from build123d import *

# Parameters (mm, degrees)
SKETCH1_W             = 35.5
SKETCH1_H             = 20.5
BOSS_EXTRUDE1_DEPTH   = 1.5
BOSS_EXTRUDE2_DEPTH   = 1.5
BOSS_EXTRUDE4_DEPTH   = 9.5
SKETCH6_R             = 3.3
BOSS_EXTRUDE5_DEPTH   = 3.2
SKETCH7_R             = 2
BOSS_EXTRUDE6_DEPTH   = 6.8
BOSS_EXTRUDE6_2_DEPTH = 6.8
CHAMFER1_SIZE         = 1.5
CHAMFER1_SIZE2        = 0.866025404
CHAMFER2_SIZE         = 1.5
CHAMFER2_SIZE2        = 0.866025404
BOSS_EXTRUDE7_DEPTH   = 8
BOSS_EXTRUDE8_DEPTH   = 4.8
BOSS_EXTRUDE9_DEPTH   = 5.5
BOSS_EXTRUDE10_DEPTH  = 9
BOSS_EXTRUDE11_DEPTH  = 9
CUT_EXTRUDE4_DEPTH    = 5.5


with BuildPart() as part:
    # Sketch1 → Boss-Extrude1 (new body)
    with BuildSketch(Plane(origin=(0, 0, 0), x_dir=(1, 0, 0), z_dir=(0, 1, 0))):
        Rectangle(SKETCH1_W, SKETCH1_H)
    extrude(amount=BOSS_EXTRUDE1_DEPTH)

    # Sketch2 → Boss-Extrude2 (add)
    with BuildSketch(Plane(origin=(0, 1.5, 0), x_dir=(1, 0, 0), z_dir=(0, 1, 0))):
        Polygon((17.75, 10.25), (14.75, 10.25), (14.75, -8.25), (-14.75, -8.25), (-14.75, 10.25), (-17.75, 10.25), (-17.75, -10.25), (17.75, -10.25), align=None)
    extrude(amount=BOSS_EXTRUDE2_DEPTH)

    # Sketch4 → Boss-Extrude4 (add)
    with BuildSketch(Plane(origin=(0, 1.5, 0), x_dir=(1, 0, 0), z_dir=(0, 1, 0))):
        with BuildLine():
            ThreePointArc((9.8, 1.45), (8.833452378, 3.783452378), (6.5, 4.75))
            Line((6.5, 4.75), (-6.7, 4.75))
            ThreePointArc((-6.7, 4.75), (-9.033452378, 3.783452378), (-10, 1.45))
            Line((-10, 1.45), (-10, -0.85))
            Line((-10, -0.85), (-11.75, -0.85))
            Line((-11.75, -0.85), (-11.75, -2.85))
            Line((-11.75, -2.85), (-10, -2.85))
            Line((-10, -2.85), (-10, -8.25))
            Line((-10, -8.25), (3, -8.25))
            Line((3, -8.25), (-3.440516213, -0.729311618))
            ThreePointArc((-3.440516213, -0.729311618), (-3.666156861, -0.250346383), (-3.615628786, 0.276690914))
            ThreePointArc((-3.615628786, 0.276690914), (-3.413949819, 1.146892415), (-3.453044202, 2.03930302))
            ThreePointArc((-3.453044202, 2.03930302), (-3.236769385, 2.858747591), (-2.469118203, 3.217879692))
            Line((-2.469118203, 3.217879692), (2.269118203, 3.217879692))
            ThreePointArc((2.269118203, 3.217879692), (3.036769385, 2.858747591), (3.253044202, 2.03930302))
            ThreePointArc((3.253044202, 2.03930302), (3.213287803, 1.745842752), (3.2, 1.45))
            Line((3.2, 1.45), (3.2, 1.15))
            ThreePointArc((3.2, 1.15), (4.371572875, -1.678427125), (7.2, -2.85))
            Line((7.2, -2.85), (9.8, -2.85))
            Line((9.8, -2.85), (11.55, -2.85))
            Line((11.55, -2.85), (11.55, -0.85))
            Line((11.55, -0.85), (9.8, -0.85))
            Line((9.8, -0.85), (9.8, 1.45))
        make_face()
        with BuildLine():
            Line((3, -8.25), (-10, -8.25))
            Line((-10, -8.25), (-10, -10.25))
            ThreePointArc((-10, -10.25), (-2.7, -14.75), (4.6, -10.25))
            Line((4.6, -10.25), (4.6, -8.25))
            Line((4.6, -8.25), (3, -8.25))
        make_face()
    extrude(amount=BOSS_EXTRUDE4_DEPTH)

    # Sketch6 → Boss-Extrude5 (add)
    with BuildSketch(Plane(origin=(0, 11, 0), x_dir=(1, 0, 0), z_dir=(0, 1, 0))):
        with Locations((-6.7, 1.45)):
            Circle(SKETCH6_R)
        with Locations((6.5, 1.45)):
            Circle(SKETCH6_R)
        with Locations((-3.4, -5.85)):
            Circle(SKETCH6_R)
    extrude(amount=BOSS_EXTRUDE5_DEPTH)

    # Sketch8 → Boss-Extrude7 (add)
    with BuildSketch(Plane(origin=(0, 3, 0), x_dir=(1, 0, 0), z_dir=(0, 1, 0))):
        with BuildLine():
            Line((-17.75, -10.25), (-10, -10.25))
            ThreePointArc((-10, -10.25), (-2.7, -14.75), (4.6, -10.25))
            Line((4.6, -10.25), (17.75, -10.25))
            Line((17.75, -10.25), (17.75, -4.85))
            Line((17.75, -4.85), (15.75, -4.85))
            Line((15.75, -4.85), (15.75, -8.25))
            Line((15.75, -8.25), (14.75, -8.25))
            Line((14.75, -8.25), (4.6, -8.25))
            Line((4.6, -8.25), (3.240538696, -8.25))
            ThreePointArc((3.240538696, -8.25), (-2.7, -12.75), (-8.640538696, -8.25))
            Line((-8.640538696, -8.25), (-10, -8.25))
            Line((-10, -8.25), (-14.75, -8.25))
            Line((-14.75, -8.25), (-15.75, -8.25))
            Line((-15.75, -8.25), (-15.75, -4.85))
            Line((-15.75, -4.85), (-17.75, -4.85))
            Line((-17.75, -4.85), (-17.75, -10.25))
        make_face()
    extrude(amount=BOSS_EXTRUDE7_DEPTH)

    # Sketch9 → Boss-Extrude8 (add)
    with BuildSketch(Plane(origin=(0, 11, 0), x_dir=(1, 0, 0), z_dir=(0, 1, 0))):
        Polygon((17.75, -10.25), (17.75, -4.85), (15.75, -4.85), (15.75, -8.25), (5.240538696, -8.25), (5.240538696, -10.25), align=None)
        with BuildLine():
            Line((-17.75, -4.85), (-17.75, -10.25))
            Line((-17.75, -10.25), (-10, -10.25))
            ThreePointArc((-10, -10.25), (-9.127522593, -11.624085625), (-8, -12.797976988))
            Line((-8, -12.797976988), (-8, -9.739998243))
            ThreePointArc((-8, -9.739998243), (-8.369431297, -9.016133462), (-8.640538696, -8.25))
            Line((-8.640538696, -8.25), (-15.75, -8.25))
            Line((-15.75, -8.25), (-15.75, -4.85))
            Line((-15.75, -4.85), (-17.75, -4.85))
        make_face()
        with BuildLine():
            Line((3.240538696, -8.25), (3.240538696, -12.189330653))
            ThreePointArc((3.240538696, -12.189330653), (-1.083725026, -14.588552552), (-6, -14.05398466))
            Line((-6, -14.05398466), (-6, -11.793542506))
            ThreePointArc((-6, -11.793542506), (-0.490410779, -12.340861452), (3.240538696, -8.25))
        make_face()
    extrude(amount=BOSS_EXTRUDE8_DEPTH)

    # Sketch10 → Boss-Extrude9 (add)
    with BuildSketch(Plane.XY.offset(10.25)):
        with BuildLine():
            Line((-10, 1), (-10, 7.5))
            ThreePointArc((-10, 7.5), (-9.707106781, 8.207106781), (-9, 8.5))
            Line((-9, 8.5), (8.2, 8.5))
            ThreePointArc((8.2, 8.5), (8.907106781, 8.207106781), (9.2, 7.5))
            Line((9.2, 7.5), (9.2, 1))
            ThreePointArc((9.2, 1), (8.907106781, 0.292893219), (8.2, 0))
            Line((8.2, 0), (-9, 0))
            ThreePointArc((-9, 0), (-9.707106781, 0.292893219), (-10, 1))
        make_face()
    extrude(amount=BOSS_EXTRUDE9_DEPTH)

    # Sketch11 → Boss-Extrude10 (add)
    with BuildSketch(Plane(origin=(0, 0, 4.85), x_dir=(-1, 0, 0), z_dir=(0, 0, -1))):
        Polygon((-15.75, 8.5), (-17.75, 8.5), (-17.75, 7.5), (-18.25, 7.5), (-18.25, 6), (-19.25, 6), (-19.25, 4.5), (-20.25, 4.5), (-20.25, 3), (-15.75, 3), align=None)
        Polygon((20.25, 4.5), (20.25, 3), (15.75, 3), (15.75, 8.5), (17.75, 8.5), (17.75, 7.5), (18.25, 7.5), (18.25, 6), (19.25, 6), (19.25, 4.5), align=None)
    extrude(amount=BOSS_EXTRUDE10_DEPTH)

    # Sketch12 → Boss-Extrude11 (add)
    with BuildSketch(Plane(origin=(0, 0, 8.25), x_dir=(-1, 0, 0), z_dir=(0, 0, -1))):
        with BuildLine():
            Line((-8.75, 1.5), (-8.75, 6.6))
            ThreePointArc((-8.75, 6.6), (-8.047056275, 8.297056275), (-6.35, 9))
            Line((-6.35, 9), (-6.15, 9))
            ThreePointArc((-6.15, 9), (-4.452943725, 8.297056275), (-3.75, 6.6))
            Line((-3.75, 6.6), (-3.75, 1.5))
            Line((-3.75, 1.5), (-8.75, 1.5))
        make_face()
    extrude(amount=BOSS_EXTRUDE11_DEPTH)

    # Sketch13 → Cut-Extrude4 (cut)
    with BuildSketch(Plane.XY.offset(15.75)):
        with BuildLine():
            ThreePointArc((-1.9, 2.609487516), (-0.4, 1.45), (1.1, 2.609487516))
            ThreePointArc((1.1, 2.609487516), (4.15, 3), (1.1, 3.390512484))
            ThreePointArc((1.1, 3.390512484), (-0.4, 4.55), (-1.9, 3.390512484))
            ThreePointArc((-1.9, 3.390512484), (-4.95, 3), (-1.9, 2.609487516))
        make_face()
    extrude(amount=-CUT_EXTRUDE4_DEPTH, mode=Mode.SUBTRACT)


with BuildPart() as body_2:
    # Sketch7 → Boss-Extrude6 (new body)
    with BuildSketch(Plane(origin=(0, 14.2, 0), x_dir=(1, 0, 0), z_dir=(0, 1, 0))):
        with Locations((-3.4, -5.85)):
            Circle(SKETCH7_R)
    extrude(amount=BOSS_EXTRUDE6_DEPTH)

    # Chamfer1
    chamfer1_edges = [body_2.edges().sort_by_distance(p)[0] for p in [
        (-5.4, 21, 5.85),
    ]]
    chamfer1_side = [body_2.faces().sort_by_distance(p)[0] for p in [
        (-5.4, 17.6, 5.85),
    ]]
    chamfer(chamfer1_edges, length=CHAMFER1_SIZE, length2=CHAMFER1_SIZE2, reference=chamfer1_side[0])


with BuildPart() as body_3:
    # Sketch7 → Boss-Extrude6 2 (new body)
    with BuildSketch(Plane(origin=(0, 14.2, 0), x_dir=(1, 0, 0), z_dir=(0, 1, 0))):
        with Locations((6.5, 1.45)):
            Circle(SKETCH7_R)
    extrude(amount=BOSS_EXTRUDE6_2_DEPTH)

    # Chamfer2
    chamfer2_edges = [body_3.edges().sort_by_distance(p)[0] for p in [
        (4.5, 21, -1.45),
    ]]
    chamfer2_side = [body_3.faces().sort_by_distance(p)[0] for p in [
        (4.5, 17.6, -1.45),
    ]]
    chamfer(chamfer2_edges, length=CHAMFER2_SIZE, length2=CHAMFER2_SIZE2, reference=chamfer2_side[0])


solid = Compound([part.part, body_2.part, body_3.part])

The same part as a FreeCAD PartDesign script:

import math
import FreeCAD as App
import Part
import Sketcher


def edges_at(feature, points):
    """Names of the edges that pass closest to the given points."""
    edges = feature.Shape.Edges
    near = lambda p: min(range(len(edges)), key=lambda i: edges[i].distToShape(Part.Vertex(*p))[0])
    return sorted({f"Edge{near(p) + 1}" for p in points})


def add_polygon(sketch, points):
    """Adds a closed chain of lines whose ends are joined by coincident constraints."""
    first, n = sketch.GeometryCount, len(points)
    for a, b in zip(points, points[1:] + points[:1]):
        sketch.addGeometry(Part.LineSegment(App.Vector(*a, 0), App.Vector(*b, 0)), False)
    for i in range(n):
        sketch.addConstraint(Sketcher.Constraint("Coincident", first + i, 2, first + (i + 1) % n, 1))

doc = App.newDocument("Part")
body = doc.addObject("PartDesign::Body", "Body")

# Sketch on XZ plane
sketch1 = doc.addObject("Sketcher::SketchObject", "Sketch")
body.addObject(sketch1)
sketch1.AttachmentSupport = (doc.XZ_Plane, [""])
sketch1.MapMode = "FlatFace"
add_polygon(sketch1, [(-17.75, -10.25), (-17.75, 10.25), (17.75, 10.25), (17.75, -10.25)])  # lines 0-3
sketch1.addConstraint([
    Sketcher.Constraint("Vertical", 0),
    Sketcher.Constraint("Horizontal", 1),
    Sketcher.Constraint("Vertical", 2),
    Sketcher.Constraint("Horizontal", 3),
    Sketcher.Constraint("Symmetric", 0, 2, 2, 2, -1, 1),
    Sketcher.Constraint("DistanceX", 1, 1, 1, 2, 35.5),
    Sketcher.Constraint("DistanceY", 0, 1, 0, 2, 20.5),
])
pad1 = doc.addObject("PartDesign::Pad", "Pad")
body.addObject(pad1)
pad1.Profile = sketch1
pad1.Length = 1.5
pad1.Reversed = True

# Sketch on XZ plane
sketch2 = doc.addObject("Sketcher::SketchObject", "Sketch001")
body.addObject(sketch2)
sketch2.AttachmentSupport = (doc.XZ_Plane, [""])
sketch2.MapMode = "FlatFace"
sketch2.AttachmentOffset = App.Placement(App.Vector(0, 0, -1.5), App.Rotation())
add_polygon(sketch2, [(17.75, -10.25), (14.75, -10.25), (14.75, 8.25), (-14.75, 8.25), (-14.75, -10.25), (-17.75, -10.25), (-17.75, 10.25), (17.75, 10.25)])  # lines 0-7
sketch2.addConstraint([
    Sketcher.Constraint("Horizontal", 0),
    Sketcher.Constraint("Vertical", 1),
    Sketcher.Constraint("Horizontal", 2),
    Sketcher.Constraint("Vertical", 3),
    Sketcher.Constraint("Horizontal", 4),
    Sketcher.Constraint("Vertical", 5),
    Sketcher.Constraint("Horizontal", 6),
    Sketcher.Constraint("Vertical", 7),
    Sketcher.Constraint("Symmetric", 4, 2, 6, 2, -1, 1),
    Sketcher.Constraint("Symmetric", 0, 2, 3, 2, -2),
    Sketcher.Constraint("DistanceX", 0, 2, 0, 1, 3.0),
    Sketcher.Constraint("DistanceX", 2, 2, 2, 1, 29.5),
    Sketcher.Constraint("DistanceY", 1, 1, 1, 2, 18.5),
    Sketcher.Constraint("DistanceY", 5, 1, 5, 2, 20.5),
])
pad2 = doc.addObject("PartDesign::Pad", "Pad001")
body.addObject(pad2)
pad2.Profile = sketch2
pad2.Length = 1.5
pad2.Reversed = True

# Sketch on XZ plane
sketch3 = doc.addObject("Sketcher::SketchObject", "Sketch002")
body.addObject(sketch3)
sketch3.AttachmentSupport = (doc.XZ_Plane, [""])
sketch3.MapMode = "FlatFace"
sketch3.AttachmentOffset = App.Placement(App.Vector(0, 0, -1.5), App.Rotation())
sketch3.addGeometry([
    Part.ArcOfCircle(Part.Circle(App.Vector(6.5, -1.45, 0), App.Vector(0, 0, 1), 3.3), math.radians(-90), math.radians(0)),  # 0
    Part.LineSegment(App.Vector(6.5, -4.75, 0), App.Vector(-6.7, -4.75, 0)),  # 1
    Part.ArcOfCircle(Part.Circle(App.Vector(-6.7, -1.45, 0), App.Vector(0, 0, 1), 3.3), math.radians(180), math.radians(270)),  # 2
    Part.LineSegment(App.Vector(-10, -1.45, 0), App.Vector(-10, 0.85, 0)),  # 3
    Part.LineSegment(App.Vector(-10, 0.85, 0), App.Vector(-11.75, 0.85, 0)),  # 4
    Part.LineSegment(App.Vector(-11.75, 0.85, 0), App.Vector(-11.75, 2.85, 0)),  # 5
    Part.LineSegment(App.Vector(-11.75, 2.85, 0), App.Vector(-10, 2.85, 0)),  # 6
    Part.LineSegment(App.Vector(-10, 2.85, 0), App.Vector(-10, 10.25, 0)),  # 7
    Part.ArcOfCircle(Part.Circle(App.Vector(-2.7, 6.578889, 0), App.Vector(0, 0, 1), 8.171111), math.radians(26.697454), math.radians(153.302546)),  # 8
    Part.LineSegment(App.Vector(4.6, 10.25, 0), App.Vector(4.6, 8.25, 0)),  # 9
    Part.LineSegment(App.Vector(4.6, 8.25, 0), App.Vector(3, 8.25, 0)),  # 10
    Part.LineSegment(App.Vector(3, 8.25, 0), App.Vector(-3.440516, 0.729312, 0)),  # 11
    Part.ArcOfCircle(Part.Circle(App.Vector(-2.680971, 0.078857, 0), App.Vector(0, 0, 1), 1), math.radians(139.424135), math.radians(200.827046)),  # 12
    Part.ArcOfCircle(Part.Circle(App.Vector(-6.7, -1.45, 0), App.Vector(0, 0, 1), 3.3), math.radians(-10.286866), math.radians(20.827047)),  # 13
    Part.ArcOfCircle(Part.Circle(App.Vector(-2.469118, -2.21788, 0), App.Vector(0, 0, 1), 1), math.radians(169.713134), math.radians(270)),  # 14
    Part.LineSegment(App.Vector(-2.469118, -3.21788, 0), App.Vector(2.269118, -3.21788, 0)),  # 15
    Part.ArcOfCircle(Part.Circle(App.Vector(2.269118, -2.21788, 0), App.Vector(0, 0, 1), 1), math.radians(-90), math.radians(10.286866)),  # 16
    Part.ArcOfCircle(Part.Circle(App.Vector(6.5, -1.45, 0), App.Vector(0, 0, 1), 3.3), math.radians(-180), math.radians(-169.713134)),  # 17
    Part.LineSegment(App.Vector(3.2, -1.45, 0), App.Vector(3.2, -1.15, 0)),  # 18
    Part.ArcOfCircle(Part.Circle(App.Vector(7.2, -1.15, 0), App.Vector(0, 0, 1), 4), math.radians(90), math.radians(180)),  # 19
    Part.LineSegment(App.Vector(7.2, 2.85, 0), App.Vector(11.55, 2.85, 0)),  # 20
    Part.LineSegment(App.Vector(11.55, 2.85, 0), App.Vector(11.55, 0.85, 0)),  # 21
    Part.LineSegment(App.Vector(11.55, 0.85, 0), App.Vector(9.8, 0.85, 0)),  # 22
    Part.LineSegment(App.Vector(9.8, 0.85, 0), App.Vector(9.8, -1.45, 0)),  # 23
], False)
sketch3.addConstraint([
    Sketcher.Constraint("Tangent", 0, 1, 1, 1),
    Sketcher.Constraint("Tangent", 1, 2, 2, 2),
    Sketcher.Constraint("Tangent", 2, 1, 3, 1),
    Sketcher.Constraint("Coincident", 3, 2, 4, 1),
    Sketcher.Constraint("Coincident", 4, 2, 5, 1),
    Sketcher.Constraint("Coincident", 5, 2, 6, 1),
    Sketcher.Constraint("Coincident", 6, 2, 7, 1),
    Sketcher.Constraint("Coincident", 7, 2, 8, 2),
    Sketcher.Constraint("Coincident", 8, 1, 9, 1),
    Sketcher.Constraint("Coincident", 9, 2, 10, 1),
    Sketcher.Constraint("Coincident", 10, 2, 11, 1),
    Sketcher.Constraint("Tangent", 11, 2, 12, 1),
    Sketcher.Constraint("Tangent", 12, 2, 13, 2),
    Sketcher.Constraint("Tangent", 13, 1, 14, 1),
    Sketcher.Constraint("Tangent", 14, 2, 15, 1),
    Sketcher.Constraint("Tangent", 15, 2, 16, 1),
    Sketcher.Constraint("Tangent", 16, 2, 17, 2),
    Sketcher.Constraint("Tangent", 17, 1, 18, 1),
    Sketcher.Constraint("Tangent", 18, 2, 19, 2),
    Sketcher.Constraint("Tangent", 19, 1, 20, 1),
    Sketcher.Constraint("Coincident", 20, 2, 21, 1),
    Sketcher.Constraint("Coincident", 21, 2, 22, 1),
    Sketcher.Constraint("Coincident", 22, 2, 23, 1),
    Sketcher.Constraint("Tangent", 23, 2, 0, 2),
    Sketcher.Constraint("Horizontal", 1),
    Sketcher.Constraint("Vertical", 3),
    Sketcher.Constraint("Horizontal", 4),
    Sketcher.Constraint("Vertical", 5),
    Sketcher.Constraint("Horizontal", 6),
    Sketcher.Constraint("Vertical", 7),
    Sketcher.Constraint("Vertical", 9),
    Sketcher.Constraint("Horizontal", 10),
    Sketcher.Constraint("Horizontal", 15),
    Sketcher.Constraint("Vertical", 18),
    Sketcher.Constraint("Horizontal", 20),
    Sketcher.Constraint("Vertical", 21),
    Sketcher.Constraint("Horizontal", 22),
    Sketcher.Constraint("Vertical", 23),
    Sketcher.Constraint("Coincident", 13, 3, 2, 3),
    Sketcher.Constraint("Coincident", 17, 3, 0, 3),
    Sketcher.Constraint("Equal", 0, 2),
    Sketcher.Constraint("Equal", 2, 13),
    Sketcher.Constraint("Equal", 12, 14),
    Sketcher.Constraint("Equal", 14, 16),
    Sketcher.Constraint("Equal", 13, 17),
    Sketcher.Constraint("Horizontal", 7, 2, 8, 1),
    Sketcher.Constraint("Horizontal", 6, 2, 19, 1),
    Sketcher.Constraint("Horizontal", 4, 2, 21, 2),
    Sketcher.Constraint("Vertical", 3, 2, 6, 2),
    Sketcher.Constraint("Equal", 6, 22),
    Sketcher.Constraint("Equal", 5, 9),
    Sketcher.Constraint("Radius", 12, 1.0),
    Sketcher.Constraint("Radius", 19, 4.0),
    Sketcher.Constraint("Radius", 0, 3.3),
    Sketcher.Constraint("DistanceY", 5, 1, 5, 2, 2.0),
    Sketcher.Constraint("DistanceX", 1, 2, 1, 1, 13.2),
    Sketcher.Constraint("DistanceX", 10, 2, 10, 1, 1.6),
    Sketcher.Constraint("DistanceY", 3, 1, 3, 2, 2.3),
    Sketcher.Constraint("DistanceY", 7, 1, 7, 2, 7.4),
    Sketcher.Constraint("DistanceX", 2, 1, -1, 1, 10.0),
    Sketcher.Constraint("DistanceX", -1, 1, 10, 2, 3.0),
    Sketcher.Constraint("DistanceX", 4, 2, 4, 1, 1.75),
    Sketcher.Constraint("DistanceY", 0, 3, -1, 1, 1.45),
    Sketcher.Constraint("Radius", 8, 8.171111),
    Sketcher.Constraint("DistanceX", 11, 2, 14, 3, 0.971398),
    Sketcher.Constraint("DistanceX", 15, 1, 15, 2, 4.738236),
])
pad3 = doc.addObject("PartDesign::Pad", "Pad002")
body.addObject(pad3)
pad3.Profile = sketch3
pad3.Length = 9.5
pad3.Reversed = True

# Sketch on XZ plane
sketch4 = doc.addObject("Sketcher::SketchObject", "Sketch003")
body.addObject(sketch4)
sketch4.AttachmentSupport = (doc.XZ_Plane, [""])
sketch4.MapMode = "FlatFace"
sketch4.AttachmentOffset = App.Placement(App.Vector(0, 0, -11), App.Rotation())
sketch4.addGeometry([
    Part.Circle(App.Vector(-6.7, -1.45, 0), App.Vector(0, 0, 1), 3.3),
    Part.Circle(App.Vector(6.5, -1.45, 0), App.Vector(0, 0, 1), 3.3),
    Part.Circle(App.Vector(-3.4, 5.85, 0), App.Vector(0, 0, 1), 3.3),
], False)
sketch4.addConstraint([
    Sketcher.Constraint("Equal", 0, 1),
    Sketcher.Constraint("Equal", 1, 2),
    Sketcher.Constraint("Horizontal", 0, 3, 1, 3),
    Sketcher.Constraint("Diameter", 0, 6.6),
    Sketcher.Constraint("DistanceX", 0, 3, -1, 1, 6.7),
    Sketcher.Constraint("DistanceX", -1, 1, 1, 3, 6.5),
    Sketcher.Constraint("DistanceX", 2, 3, -1, 1, 3.4),
    Sketcher.Constraint("DistanceY", 0, 3, 2, 3, 7.3),
    Sketcher.Constraint("DistanceY", 0, 3, -1, 1, 1.45),
])
pad4 = doc.addObject("PartDesign::Pad", "Pad003")
body.addObject(pad4)
pad4.Profile = sketch4
pad4.Length = 3.2
pad4.Reversed = True

# Sketch on XZ plane
sketch5 = doc.addObject("Sketcher::SketchObject", "Sketch004")
body.addObject(sketch5)
sketch5.AttachmentSupport = (doc.XZ_Plane, [""])
sketch5.MapMode = "FlatFace"
sketch5.AttachmentOffset = App.Placement(App.Vector(0, 0, -3), App.Rotation())
sketch5.addGeometry([
    Part.LineSegment(App.Vector(-17.75, 10.25, 0), App.Vector(-10, 10.25, 0)),  # 0
    Part.ArcOfCircle(Part.Circle(App.Vector(-2.7, 6.578889, 0), App.Vector(0, 0, 1), 8.171111), math.radians(26.697454), math.radians(153.302546)),  # 1
    Part.LineSegment(App.Vector(4.6, 10.25, 0), App.Vector(17.75, 10.25, 0)),  # 2
    Part.LineSegment(App.Vector(17.75, 10.25, 0), App.Vector(17.75, 4.85, 0)),  # 3
    Part.LineSegment(App.Vector(17.75, 4.85, 0), App.Vector(15.75, 4.85, 0)),  # 4
    Part.LineSegment(App.Vector(15.75, 4.85, 0), App.Vector(15.75, 8.25, 0)),  # 5
    Part.LineSegment(App.Vector(15.75, 8.25, 0), App.Vector(3.240539, 8.25, 0)),  # 6
    Part.ArcOfCircle(Part.Circle(App.Vector(-2.7, 6.578889, 0), App.Vector(0, 0, 1), 6.171111), math.radians(15.711628), math.radians(164.288372)),  # 7
    Part.LineSegment(App.Vector(-8.640539, 8.25, 0), App.Vector(-15.75, 8.25, 0)),  # 8
    Part.LineSegment(App.Vector(-15.75, 8.25, 0), App.Vector(-15.75, 4.85, 0)),  # 9
    Part.LineSegment(App.Vector(-15.75, 4.85, 0), App.Vector(-17.75, 4.85, 0)),  # 10
    Part.LineSegment(App.Vector(-17.75, 4.85, 0), App.Vector(-17.75, 10.25, 0)),  # 11
], False)
sketch5.addConstraint([
    Sketcher.Constraint("Coincident", 0, 2, 1, 2),
    Sketcher.Constraint("Coincident", 1, 1, 2, 1),
    Sketcher.Constraint("Coincident", 2, 2, 3, 1),
    Sketcher.Constraint("Coincident", 3, 2, 4, 1),
    Sketcher.Constraint("Coincident", 4, 2, 5, 1),
    Sketcher.Constraint("Coincident", 5, 2, 6, 1),
    Sketcher.Constraint("Coincident", 6, 2, 7, 1),
    Sketcher.Constraint("Coincident", 7, 2, 8, 1),
    Sketcher.Constraint("Coincident", 8, 2, 9, 1),
    Sketcher.Constraint("Coincident", 9, 2, 10, 1),
    Sketcher.Constraint("Coincident", 10, 2, 11, 1),
    Sketcher.Constraint("Coincident", 11, 2, 0, 1),
    Sketcher.Constraint("Horizontal", 0),
    Sketcher.Constraint("Horizontal", 2),
    Sketcher.Constraint("Vertical", 3),
    Sketcher.Constraint("Horizontal", 4),
    Sketcher.Constraint("Vertical", 5),
    Sketcher.Constraint("Horizontal", 6),
    Sketcher.Constraint("Horizontal", 8),
    Sketcher.Constraint("Vertical", 9),
    Sketcher.Constraint("Horizontal", 10),
    Sketcher.Constraint("Vertical", 11),
    Sketcher.Constraint("Coincident", 7, 3, 1, 3),
    Sketcher.Constraint("Symmetric", 5, 2, 8, 2, -2),
    Sketcher.Constraint("Symmetric", 3, 2, 10, 2, -2),
    Sketcher.Constraint("Horizontal", 0, 2, 1, 1),
    Sketcher.Constraint("DistanceX", 4, 2, 4, 1, 2.0),
    Sketcher.Constraint("DistanceY", 3, 2, 3, 1, 5.4),
    Sketcher.Constraint("DistanceY", 5, 1, 5, 2, 3.4),
    Sketcher.Constraint("DistanceX", 0, 2, -1, 1, 10.0),
    Sketcher.Constraint("DistanceX", 0, 1, 0, 2, 7.75),
    Sketcher.Constraint("DistanceX", 2, 1, 2, 2, 13.15),
    Sketcher.Constraint("DistanceY", -1, 1, 0, 2, 10.25),
    Sketcher.Constraint("Radius", 1, 8.171111),
    Sketcher.Constraint("Radius", 7, 6.171111),
])
pad5 = doc.addObject("PartDesign::Pad", "Pad004")
body.addObject(pad5)
pad5.Profile = sketch5
pad5.Length = 8
pad5.Reversed = True

# Sketch on XZ plane
sketch6 = doc.addObject("Sketcher::SketchObject", "Sketch005")
body.addObject(sketch6)
sketch6.AttachmentSupport = (doc.XZ_Plane, [""])
sketch6.MapMode = "FlatFace"
sketch6.AttachmentOffset = App.Placement(App.Vector(0, 0, -11), App.Rotation())
add_polygon(sketch6, [(17.75, 10.25), (17.75, 4.85), (15.75, 4.85), (15.75, 8.25), (5.240539, 8.25), (5.240539, 10.25)])  # lines 0-5
sketch6.addGeometry(Part.LineSegment(App.Vector(-17.75, 4.85, 0), App.Vector(-17.75, 10.25, 0)), False)  # 6
sketch6.addGeometry(Part.LineSegment(App.Vector(-17.75, 10.25, 0), App.Vector(-10, 10.25, 0)), False)  # 7
sketch6.addGeometry(Part.ArcOfCircle(Part.Circle(App.Vector(-2.7, 6.578889, 0), App.Vector(0, 0, 1), 8.171111), math.radians(130.438133), math.radians(153.302546)), False)  # 8
sketch6.addGeometry(Part.LineSegment(App.Vector(-8, 12.797977, 0), App.Vector(-8, 9.739998, 0)), False)  # 9
sketch6.addGeometry(Part.ArcOfCircle(Part.Circle(App.Vector(-2.7, 6.578889, 0), App.Vector(0, 0, 1), 6.171111), math.radians(149.18664), math.radians(164.288372)), False)  # 10
sketch6.addGeometry(Part.LineSegment(App.Vector(-8.640539, 8.25, 0), App.Vector(-15.75, 8.25, 0)), False)  # 11
sketch6.addGeometry(Part.LineSegment(App.Vector(-15.75, 8.25, 0), App.Vector(-15.75, 4.85, 0)), False)  # 12
sketch6.addGeometry(Part.LineSegment(App.Vector(-15.75, 4.85, 0), App.Vector(-17.75, 4.85, 0)), False)  # 13
sketch6.addGeometry(Part.LineSegment(App.Vector(3.240539, 12.189331, 0), App.Vector(3.240539, 8.25, 0)), False)  # 14
sketch6.addGeometry(Part.ArcOfCircle(Part.Circle(App.Vector(-2.7, 6.578889, 0), App.Vector(0, 0, 1), 6.171111), math.radians(15.711628), math.radians(122.32694)), False)  # 15
sketch6.addGeometry(Part.LineSegment(App.Vector(-6, 11.793543, 0), App.Vector(-6, 14.053985, 0)), False)  # 16
sketch6.addGeometry(Part.ArcOfCircle(Part.Circle(App.Vector(-2.7, 6.578889, 0), App.Vector(0, 0, 1), 8.171111), math.radians(43.363081), math.radians(113.819824)), False)  # 17
sketch6.addConstraint([
    Sketcher.Constraint("Coincident", 6, 2, 7, 1),
    Sketcher.Constraint("Coincident", 7, 2, 8, 2),
    Sketcher.Constraint("Coincident", 8, 1, 9, 1),
    Sketcher.Constraint("Coincident", 9, 2, 10, 1),
    Sketcher.Constraint("Coincident", 10, 2, 11, 1),
    Sketcher.Constraint("Coincident", 11, 2, 12, 1),
    Sketcher.Constraint("Coincident", 12, 2, 13, 1),
    Sketcher.Constraint("Coincident", 13, 2, 6, 1),
    Sketcher.Constraint("Coincident", 14, 2, 15, 1),
    Sketcher.Constraint("Coincident", 15, 2, 16, 1),
    Sketcher.Constraint("Coincident", 16, 2, 17, 2),
    Sketcher.Constraint("Coincident", 17, 1, 14, 1),
    Sketcher.Constraint("Vertical", 0),
    Sketcher.Constraint("Horizontal", 1),
    Sketcher.Constraint("Vertical", 2),
    Sketcher.Constraint("Horizontal", 3),
    Sketcher.Constraint("Vertical", 4),
    Sketcher.Constraint("Horizontal", 5),
    Sketcher.Constraint("Vertical", 6),
    Sketcher.Constraint("Horizontal", 7),
    Sketcher.Constraint("Vertical", 9),
    Sketcher.Constraint("Horizontal", 11),
    Sketcher.Constraint("Vertical", 12),
    Sketcher.Constraint("Horizontal", 13),
    Sketcher.Constraint("Vertical", 14),
    Sketcher.Constraint("Vertical", 16),
    Sketcher.Constraint("Coincident", 10, 3, 8, 3),
    Sketcher.Constraint("Coincident", 15, 3, 8, 3),
    Sketcher.Constraint("Coincident", 17, 3, 8, 3),
    Sketcher.Constraint("Equal", 10, 15),
    Sketcher.Constraint("Equal", 8, 17),
    Sketcher.Constraint("Symmetric", 5, 2, 6, 2, -2),
    Sketcher.Constraint("Symmetric", 2, 2, 11, 2, -2),
    Sketcher.Constraint("Horizontal", 1, 2, 12, 2),
    Sketcher.Constraint("Horizontal", 11, 2, 14, 2),
    Sketcher.Constraint("Equal", 13, 4),
    Sketcher.Constraint("DistanceX", 1, 2, 1, 1, 2.0),
    Sketcher.Constraint("DistanceY", 0, 2, 0, 1, 5.4),
    Sketcher.Constraint("DistanceX", 7, 2, -1, 1, 10.0),
    Sketcher.Constraint("DistanceX", 8, 1, -1, 1, 8.0),
    Sketcher.Constraint("DistanceX", 15, 2, -1, 1, 6.0),
    Sketcher.Constraint("DistanceX", 14, 2, 3, 2, 2.0),
    Sketcher.Constraint("DistanceX", 7, 1, 7, 2, 7.75),
    Sketcher.Constraint("DistanceX", 8, 3, -1, 1, 2.7),
    Sketcher.Constraint("DistanceY", -1, 1, 0, 2, 4.85),
    Sketcher.Constraint("DistanceY", -1, 1, 9, 2, 9.739998),
    Sketcher.Constraint("Radius", 8, 8.171111),
])
pad6 = doc.addObject("PartDesign::Pad", "Pad005")
body.addObject(pad6)
pad6.Profile = sketch6
pad6.Length = 4.8
pad6.Reversed = True

# Sketch on XY plane
sketch7 = doc.addObject("Sketcher::SketchObject", "Sketch006")
body.addObject(sketch7)
sketch7.AttachmentSupport = (doc.XY_Plane, [""])
sketch7.MapMode = "FlatFace"
sketch7.AttachmentOffset = App.Placement(App.Vector(0, 0, 10.25), App.Rotation())
sketch7.addGeometry([
    Part.LineSegment(App.Vector(-10, 7.5, 0), App.Vector(-10, 1, 0)),  # 0
    Part.ArcOfCircle(Part.Circle(App.Vector(-9, 1, 0), App.Vector(0, 0, 1), 1), math.radians(-180), math.radians(-90)),  # 1
    Part.LineSegment(App.Vector(-9, 0, 0), App.Vector(8.2, 0, 0)),  # 2
    Part.ArcOfCircle(Part.Circle(App.Vector(8.2, 1, 0), App.Vector(0, 0, 1), 1), math.radians(-90), math.radians(0)),  # 3
    Part.LineSegment(App.Vector(9.2, 1, 0), App.Vector(9.2, 7.5, 0)),  # 4
    Part.ArcOfCircle(Part.Circle(App.Vector(8.2, 7.5, 0), App.Vector(0, 0, 1), 1), math.radians(0), math.radians(90)),  # 5
    Part.LineSegment(App.Vector(8.2, 8.5, 0), App.Vector(-9, 8.5, 0)),  # 6
    Part.ArcOfCircle(Part.Circle(App.Vector(-9, 7.5, 0), App.Vector(0, 0, 1), 1), math.radians(90), math.radians(180)),  # 7
], False)
sketch7.addConstraint([
    Sketcher.Constraint("Tangent", 0, 2, 1, 1),
    Sketcher.Constraint("Tangent", 1, 2, 2, 1),
    Sketcher.Constraint("Tangent", 2, 2, 3, 1),
    Sketcher.Constraint("Tangent", 3, 2, 4, 1),
    Sketcher.Constraint("Tangent", 4, 2, 5, 1),
    Sketcher.Constraint("Tangent", 5, 2, 6, 1),
    Sketcher.Constraint("Tangent", 6, 2, 7, 1),
    Sketcher.Constraint("Tangent", 7, 2, 0, 1),
    Sketcher.Constraint("Vertical", 0),
    Sketcher.Constraint("Horizontal", 2),
    Sketcher.Constraint("Vertical", 4),
    Sketcher.Constraint("Horizontal", 6),
    Sketcher.Constraint("Equal", 1, 3),
    Sketcher.Constraint("Equal", 3, 5),
    Sketcher.Constraint("Equal", 5, 7),
    Sketcher.Constraint("PointOnObject", 1, 2, -1),
    Sketcher.Constraint("Radius", 1, 1.0),
    Sketcher.Constraint("DistanceX", 2, 1, 2, 2, 17.2),
    Sketcher.Constraint("DistanceY", 0, 2, 0, 1, 6.5),
    Sketcher.Constraint("DistanceX", 1, 3, -1, 1, 9.0),
])
pad7 = doc.addObject("PartDesign::Pad", "Pad006")
body.addObject(pad7)
pad7.Profile = sketch7
pad7.Length = 5.5

# Sketch on XY plane
sketch8 = doc.addObject("Sketcher::SketchObject", "Sketch007")
body.addObject(sketch8)
sketch8.AttachmentSupport = (doc.XY_Plane, [""])
sketch8.MapMode = "FlatFace"
sketch8.AttachmentOffset = App.Placement(App.Vector(0, 0, 4.85), App.Rotation())
add_polygon(sketch8, [(15.75, 8.5), (17.75, 8.5), (17.75, 7.5), (18.25, 7.5), (18.25, 6), (19.25, 6), (19.25, 4.5), (20.25, 4.5), (20.25, 3), (15.75, 3)])  # lines 0-9
add_polygon(sketch8, [(-20.25, 3), (-20.25, 4.5), (-19.25, 4.5), (-19.25, 6), (-18.25, 6), (-18.25, 7.5), (-17.75, 7.5), (-17.75, 8.5), (-15.75, 8.5), (-15.75, 3)])  # lines 10-19
sketch8.addConstraint([
    Sketcher.Constraint("Horizontal", 0),
    Sketcher.Constraint("Vertical", 1),
    Sketcher.Constraint("Horizontal", 2),
    Sketcher.Constraint("Vertical", 3),
    Sketcher.Constraint("Horizontal", 4),
    Sketcher.Constraint("Vertical", 5),
    Sketcher.Constraint("Horizontal", 6),
    Sketcher.Constraint("Vertical", 7),
    Sketcher.Constraint("Horizontal", 8),
    Sketcher.Constraint("Vertical", 9),
    Sketcher.Constraint("Vertical", 10),
    Sketcher.Constraint("Horizontal", 11),
    Sketcher.Constraint("Vertical", 12),
    Sketcher.Constraint("Horizontal", 13),
    Sketcher.Constraint("Vertical", 14),
    Sketcher.Constraint("Horizontal", 15),
    Sketcher.Constraint("Vertical", 16),
    Sketcher.Constraint("Horizontal", 17),
    Sketcher.Constraint("Vertical", 18),
    Sketcher.Constraint("Horizontal", 19),
    Sketcher.Constraint("Symmetric", 6, 2, 10, 2, -2),
    Sketcher.Constraint("Symmetric", 4, 2, 12, 2, -2),
    Sketcher.Constraint("Symmetric", 2, 2, 14, 2, -2),
    Sketcher.Constraint("Symmetric", 0, 2, 16, 2, -2),
    Sketcher.Constraint("Symmetric", 8, 2, 18, 2, -2),
    Sketcher.Constraint("Equal", 4, 6),
    Sketcher.Constraint("Equal", 13, 1),
    Sketcher.Constraint("Equal", 3, 5),
    Sketcher.Constraint("Equal", 5, 7),
    Sketcher.Constraint("DistanceX", 0, 1, 0, 2, 2.0),
    Sketcher.Constraint("DistanceX", 4, 1, 4, 2, 1.0),
    Sketcher.Constraint("DistanceX", 2, 1, 2, 2, 0.5),
    Sketcher.Constraint("DistanceY", 3, 2, 3, 1, 1.5),
    Sketcher.Constraint("DistanceY", -1, 1, 3, 2, 6.0),
    Sketcher.Constraint("DistanceX", 10, 2, 8, 2, 36.0),
])
pad8 = doc.addObject("PartDesign::Pad", "Pad007")
body.addObject(pad8)
pad8.Profile = sketch8
pad8.Length = 9
pad8.Reversed = True

# Sketch on XY plane
sketch9 = doc.addObject("Sketcher::SketchObject", "Sketch008")
body.addObject(sketch9)
sketch9.AttachmentSupport = (doc.XY_Plane, [""])
sketch9.MapMode = "FlatFace"
sketch9.AttachmentOffset = App.Placement(App.Vector(0, 0, 8.25), App.Rotation())
sketch9.addGeometry([
    Part.LineSegment(App.Vector(8.75, 6.6, 0), App.Vector(8.75, 1.5, 0)),  # 0
    Part.LineSegment(App.Vector(8.75, 1.5, 0), App.Vector(3.75, 1.5, 0)),  # 1
    Part.LineSegment(App.Vector(3.75, 1.5, 0), App.Vector(3.75, 6.6, 0)),  # 2
    Part.ArcOfCircle(Part.Circle(App.Vector(6.15, 6.6, 0), App.Vector(0, 0, 1), 2.4), math.radians(90), math.radians(180)),  # 3
    Part.LineSegment(App.Vector(6.15, 9, 0), App.Vector(6.35, 9, 0)),  # 4
    Part.ArcOfCircle(Part.Circle(App.Vector(6.35, 6.6, 0), App.Vector(0, 0, 1), 2.4), math.radians(0), math.radians(90)),  # 5
], False)
sketch9.addConstraint([
    Sketcher.Constraint("Coincident", 0, 2, 1, 1),
    Sketcher.Constraint("Coincident", 1, 2, 2, 1),
    Sketcher.Constraint("Tangent", 2, 2, 3, 2),
    Sketcher.Constraint("Tangent", 3, 1, 4, 1),
    Sketcher.Constraint("Tangent", 4, 2, 5, 2),
    Sketcher.Constraint("Tangent", 5, 1, 0, 1),
    Sketcher.Constraint("Vertical", 0),
    Sketcher.Constraint("Horizontal", 1),
    Sketcher.Constraint("Vertical", 2),
    Sketcher.Constraint("Horizontal", 4),
    Sketcher.Constraint("Equal", 3, 5),
    Sketcher.Constraint("Radius", 3, 2.4),
    Sketcher.Constraint("DistanceX", 1, 2, 1, 1, 5.0),
    Sketcher.Constraint("DistanceY", 0, 2, 0, 1, 5.1),
    Sketcher.Constraint("DistanceY", -1, 1, 3, 1, 9.0),
    Sketcher.Constraint("DistanceX", -1, 1, 3, 3, 6.15),
])
pad9 = doc.addObject("PartDesign::Pad", "Pad008")
body.addObject(pad9)
pad9.Profile = sketch9
pad9.Length = 9
pad9.Reversed = True

# Sketch on XY plane
sketch10 = doc.addObject("Sketcher::SketchObject", "Sketch009")
body.addObject(sketch10)
sketch10.AttachmentSupport = (doc.XY_Plane, [""])
sketch10.MapMode = "FlatFace"
sketch10.AttachmentOffset = App.Placement(App.Vector(0, 0, 15.75), App.Rotation())
sketch10.addGeometry([
    Part.ArcOfCircle(Part.Circle(App.Vector(-0.4, 3, 0), App.Vector(0, 0, 1), 1.55), math.radians(-165.407449), math.radians(-14.592551)),
    Part.ArcOfCircle(Part.Circle(App.Vector(2.6, 3, 0), App.Vector(0, 0, 1), 1.55), math.radians(-165.407449), math.radians(165.407449)),
    Part.ArcOfCircle(Part.Circle(App.Vector(-0.4, 3, 0), App.Vector(0, 0, 1), 1.55), math.radians(14.592551), math.radians(165.407449)),
    Part.ArcOfCircle(Part.Circle(App.Vector(-3.4, 3, 0), App.Vector(0, 0, 1), 1.55), math.radians(14.592551), math.radians(345.407449)),
], False)
sketch10.addConstraint([
    Sketcher.Constraint("Coincident", 0, 2, 1, 1),
    Sketcher.Constraint("Coincident", 1, 2, 2, 1),
    Sketcher.Constraint("Coincident", 2, 2, 3, 1),
    Sketcher.Constraint("Coincident", 3, 2, 0, 1),
    Sketcher.Constraint("Coincident", 2, 3, 0, 3),
    Sketcher.Constraint("Equal", 0, 1),
    Sketcher.Constraint("Equal", 1, 2),
    Sketcher.Constraint("Equal", 2, 3),
    Sketcher.Constraint("Horizontal", 0, 3, 1, 3),
    Sketcher.Constraint("Horizontal", 2, 3, 3, 3),
    Sketcher.Constraint("Horizontal", 1, 2, 2, 2),
    Sketcher.Constraint("Radius", 0, 1.55),
    Sketcher.Constraint("DistanceY", -1, 1, 0, 3, 3.0),
    Sketcher.Constraint("DistanceX", 0, 3, 1, 3, 3.0),
    Sketcher.Constraint("DistanceX", 0, 3, -1, 1, 0.4),
])
pocket1 = doc.addObject("PartDesign::Pocket", "Pocket")
body.addObject(pocket1)
pocket1.Profile = sketch10
pocket1.Length = 5.5
body2 = doc.addObject("PartDesign::Body", "Body001")

# Sketch on XZ plane
sketch11 = doc.addObject("Sketcher::SketchObject", "Sketch010")
body2.addObject(sketch11)
sketch11.AttachmentSupport = (doc.getObject("XZ_Plane001"), [""])
sketch11.MapMode = "FlatFace"
sketch11.AttachmentOffset = App.Placement(App.Vector(0, 0, -14.2), App.Rotation())
sketch11.addGeometry(Part.Circle(App.Vector(-3.4, 5.85, 0), App.Vector(0, 0, 1), 2), False)
sketch11.addConstraint([
    Sketcher.Constraint("Diameter", 0, 4.0),
    Sketcher.Constraint("DistanceX", 0, 3, -1, 1, 3.4),
    Sketcher.Constraint("DistanceY", -1, 1, 0, 3, 5.85),
])
pad10 = doc.addObject("PartDesign::Pad", "Pad009")
body2.addObject(pad10)
pad10.Profile = sketch11
pad10.Length = 6.8
pad10.Reversed = True
doc.recompute()

chamfer = doc.addObject("PartDesign::Chamfer", "Chamfer")
body2.addObject(chamfer)
chamfer.Base = (pad10, edges_at(pad10, [(-5.4, 21, 5.85)]))
chamfer.ChamferType = "Two distances"
chamfer.Size = 1.5
chamfer.Size2 = 0.866025
body3 = doc.addObject("PartDesign::Body", "Body002")

# Sketch on XZ plane
sketch12 = doc.addObject("Sketcher::SketchObject", "Sketch011")
body3.addObject(sketch12)
sketch12.AttachmentSupport = (doc.getObject("XZ_Plane002"), [""])
sketch12.MapMode = "FlatFace"
sketch12.AttachmentOffset = App.Placement(App.Vector(0, 0, -14.2), App.Rotation())
sketch12.addGeometry(Part.Circle(App.Vector(6.5, -1.45, 0), App.Vector(0, 0, 1), 2), False)
sketch12.addConstraint([
    Sketcher.Constraint("Diameter", 0, 4.0),
    Sketcher.Constraint("DistanceX", -1, 1, 0, 3, 6.5),
    Sketcher.Constraint("DistanceY", 0, 3, -1, 1, 1.45),
])
pad11 = doc.addObject("PartDesign::Pad", "Pad010")
body3.addObject(pad11)
pad11.Profile = sketch12
pad11.Length = 6.8
pad11.Reversed = True
doc.recompute()

chamfer2 = doc.addObject("PartDesign::Chamfer", "Chamfer001")
body3.addObject(chamfer2)
chamfer2.Base = (pad11, edges_at(pad11, [(4.5, 21, -1.45)]))
chamfer2.ChamferType = "Two distances"
chamfer2.Size = 1.5
chamfer2.Size2 = 0.866025

doc.recompute()
